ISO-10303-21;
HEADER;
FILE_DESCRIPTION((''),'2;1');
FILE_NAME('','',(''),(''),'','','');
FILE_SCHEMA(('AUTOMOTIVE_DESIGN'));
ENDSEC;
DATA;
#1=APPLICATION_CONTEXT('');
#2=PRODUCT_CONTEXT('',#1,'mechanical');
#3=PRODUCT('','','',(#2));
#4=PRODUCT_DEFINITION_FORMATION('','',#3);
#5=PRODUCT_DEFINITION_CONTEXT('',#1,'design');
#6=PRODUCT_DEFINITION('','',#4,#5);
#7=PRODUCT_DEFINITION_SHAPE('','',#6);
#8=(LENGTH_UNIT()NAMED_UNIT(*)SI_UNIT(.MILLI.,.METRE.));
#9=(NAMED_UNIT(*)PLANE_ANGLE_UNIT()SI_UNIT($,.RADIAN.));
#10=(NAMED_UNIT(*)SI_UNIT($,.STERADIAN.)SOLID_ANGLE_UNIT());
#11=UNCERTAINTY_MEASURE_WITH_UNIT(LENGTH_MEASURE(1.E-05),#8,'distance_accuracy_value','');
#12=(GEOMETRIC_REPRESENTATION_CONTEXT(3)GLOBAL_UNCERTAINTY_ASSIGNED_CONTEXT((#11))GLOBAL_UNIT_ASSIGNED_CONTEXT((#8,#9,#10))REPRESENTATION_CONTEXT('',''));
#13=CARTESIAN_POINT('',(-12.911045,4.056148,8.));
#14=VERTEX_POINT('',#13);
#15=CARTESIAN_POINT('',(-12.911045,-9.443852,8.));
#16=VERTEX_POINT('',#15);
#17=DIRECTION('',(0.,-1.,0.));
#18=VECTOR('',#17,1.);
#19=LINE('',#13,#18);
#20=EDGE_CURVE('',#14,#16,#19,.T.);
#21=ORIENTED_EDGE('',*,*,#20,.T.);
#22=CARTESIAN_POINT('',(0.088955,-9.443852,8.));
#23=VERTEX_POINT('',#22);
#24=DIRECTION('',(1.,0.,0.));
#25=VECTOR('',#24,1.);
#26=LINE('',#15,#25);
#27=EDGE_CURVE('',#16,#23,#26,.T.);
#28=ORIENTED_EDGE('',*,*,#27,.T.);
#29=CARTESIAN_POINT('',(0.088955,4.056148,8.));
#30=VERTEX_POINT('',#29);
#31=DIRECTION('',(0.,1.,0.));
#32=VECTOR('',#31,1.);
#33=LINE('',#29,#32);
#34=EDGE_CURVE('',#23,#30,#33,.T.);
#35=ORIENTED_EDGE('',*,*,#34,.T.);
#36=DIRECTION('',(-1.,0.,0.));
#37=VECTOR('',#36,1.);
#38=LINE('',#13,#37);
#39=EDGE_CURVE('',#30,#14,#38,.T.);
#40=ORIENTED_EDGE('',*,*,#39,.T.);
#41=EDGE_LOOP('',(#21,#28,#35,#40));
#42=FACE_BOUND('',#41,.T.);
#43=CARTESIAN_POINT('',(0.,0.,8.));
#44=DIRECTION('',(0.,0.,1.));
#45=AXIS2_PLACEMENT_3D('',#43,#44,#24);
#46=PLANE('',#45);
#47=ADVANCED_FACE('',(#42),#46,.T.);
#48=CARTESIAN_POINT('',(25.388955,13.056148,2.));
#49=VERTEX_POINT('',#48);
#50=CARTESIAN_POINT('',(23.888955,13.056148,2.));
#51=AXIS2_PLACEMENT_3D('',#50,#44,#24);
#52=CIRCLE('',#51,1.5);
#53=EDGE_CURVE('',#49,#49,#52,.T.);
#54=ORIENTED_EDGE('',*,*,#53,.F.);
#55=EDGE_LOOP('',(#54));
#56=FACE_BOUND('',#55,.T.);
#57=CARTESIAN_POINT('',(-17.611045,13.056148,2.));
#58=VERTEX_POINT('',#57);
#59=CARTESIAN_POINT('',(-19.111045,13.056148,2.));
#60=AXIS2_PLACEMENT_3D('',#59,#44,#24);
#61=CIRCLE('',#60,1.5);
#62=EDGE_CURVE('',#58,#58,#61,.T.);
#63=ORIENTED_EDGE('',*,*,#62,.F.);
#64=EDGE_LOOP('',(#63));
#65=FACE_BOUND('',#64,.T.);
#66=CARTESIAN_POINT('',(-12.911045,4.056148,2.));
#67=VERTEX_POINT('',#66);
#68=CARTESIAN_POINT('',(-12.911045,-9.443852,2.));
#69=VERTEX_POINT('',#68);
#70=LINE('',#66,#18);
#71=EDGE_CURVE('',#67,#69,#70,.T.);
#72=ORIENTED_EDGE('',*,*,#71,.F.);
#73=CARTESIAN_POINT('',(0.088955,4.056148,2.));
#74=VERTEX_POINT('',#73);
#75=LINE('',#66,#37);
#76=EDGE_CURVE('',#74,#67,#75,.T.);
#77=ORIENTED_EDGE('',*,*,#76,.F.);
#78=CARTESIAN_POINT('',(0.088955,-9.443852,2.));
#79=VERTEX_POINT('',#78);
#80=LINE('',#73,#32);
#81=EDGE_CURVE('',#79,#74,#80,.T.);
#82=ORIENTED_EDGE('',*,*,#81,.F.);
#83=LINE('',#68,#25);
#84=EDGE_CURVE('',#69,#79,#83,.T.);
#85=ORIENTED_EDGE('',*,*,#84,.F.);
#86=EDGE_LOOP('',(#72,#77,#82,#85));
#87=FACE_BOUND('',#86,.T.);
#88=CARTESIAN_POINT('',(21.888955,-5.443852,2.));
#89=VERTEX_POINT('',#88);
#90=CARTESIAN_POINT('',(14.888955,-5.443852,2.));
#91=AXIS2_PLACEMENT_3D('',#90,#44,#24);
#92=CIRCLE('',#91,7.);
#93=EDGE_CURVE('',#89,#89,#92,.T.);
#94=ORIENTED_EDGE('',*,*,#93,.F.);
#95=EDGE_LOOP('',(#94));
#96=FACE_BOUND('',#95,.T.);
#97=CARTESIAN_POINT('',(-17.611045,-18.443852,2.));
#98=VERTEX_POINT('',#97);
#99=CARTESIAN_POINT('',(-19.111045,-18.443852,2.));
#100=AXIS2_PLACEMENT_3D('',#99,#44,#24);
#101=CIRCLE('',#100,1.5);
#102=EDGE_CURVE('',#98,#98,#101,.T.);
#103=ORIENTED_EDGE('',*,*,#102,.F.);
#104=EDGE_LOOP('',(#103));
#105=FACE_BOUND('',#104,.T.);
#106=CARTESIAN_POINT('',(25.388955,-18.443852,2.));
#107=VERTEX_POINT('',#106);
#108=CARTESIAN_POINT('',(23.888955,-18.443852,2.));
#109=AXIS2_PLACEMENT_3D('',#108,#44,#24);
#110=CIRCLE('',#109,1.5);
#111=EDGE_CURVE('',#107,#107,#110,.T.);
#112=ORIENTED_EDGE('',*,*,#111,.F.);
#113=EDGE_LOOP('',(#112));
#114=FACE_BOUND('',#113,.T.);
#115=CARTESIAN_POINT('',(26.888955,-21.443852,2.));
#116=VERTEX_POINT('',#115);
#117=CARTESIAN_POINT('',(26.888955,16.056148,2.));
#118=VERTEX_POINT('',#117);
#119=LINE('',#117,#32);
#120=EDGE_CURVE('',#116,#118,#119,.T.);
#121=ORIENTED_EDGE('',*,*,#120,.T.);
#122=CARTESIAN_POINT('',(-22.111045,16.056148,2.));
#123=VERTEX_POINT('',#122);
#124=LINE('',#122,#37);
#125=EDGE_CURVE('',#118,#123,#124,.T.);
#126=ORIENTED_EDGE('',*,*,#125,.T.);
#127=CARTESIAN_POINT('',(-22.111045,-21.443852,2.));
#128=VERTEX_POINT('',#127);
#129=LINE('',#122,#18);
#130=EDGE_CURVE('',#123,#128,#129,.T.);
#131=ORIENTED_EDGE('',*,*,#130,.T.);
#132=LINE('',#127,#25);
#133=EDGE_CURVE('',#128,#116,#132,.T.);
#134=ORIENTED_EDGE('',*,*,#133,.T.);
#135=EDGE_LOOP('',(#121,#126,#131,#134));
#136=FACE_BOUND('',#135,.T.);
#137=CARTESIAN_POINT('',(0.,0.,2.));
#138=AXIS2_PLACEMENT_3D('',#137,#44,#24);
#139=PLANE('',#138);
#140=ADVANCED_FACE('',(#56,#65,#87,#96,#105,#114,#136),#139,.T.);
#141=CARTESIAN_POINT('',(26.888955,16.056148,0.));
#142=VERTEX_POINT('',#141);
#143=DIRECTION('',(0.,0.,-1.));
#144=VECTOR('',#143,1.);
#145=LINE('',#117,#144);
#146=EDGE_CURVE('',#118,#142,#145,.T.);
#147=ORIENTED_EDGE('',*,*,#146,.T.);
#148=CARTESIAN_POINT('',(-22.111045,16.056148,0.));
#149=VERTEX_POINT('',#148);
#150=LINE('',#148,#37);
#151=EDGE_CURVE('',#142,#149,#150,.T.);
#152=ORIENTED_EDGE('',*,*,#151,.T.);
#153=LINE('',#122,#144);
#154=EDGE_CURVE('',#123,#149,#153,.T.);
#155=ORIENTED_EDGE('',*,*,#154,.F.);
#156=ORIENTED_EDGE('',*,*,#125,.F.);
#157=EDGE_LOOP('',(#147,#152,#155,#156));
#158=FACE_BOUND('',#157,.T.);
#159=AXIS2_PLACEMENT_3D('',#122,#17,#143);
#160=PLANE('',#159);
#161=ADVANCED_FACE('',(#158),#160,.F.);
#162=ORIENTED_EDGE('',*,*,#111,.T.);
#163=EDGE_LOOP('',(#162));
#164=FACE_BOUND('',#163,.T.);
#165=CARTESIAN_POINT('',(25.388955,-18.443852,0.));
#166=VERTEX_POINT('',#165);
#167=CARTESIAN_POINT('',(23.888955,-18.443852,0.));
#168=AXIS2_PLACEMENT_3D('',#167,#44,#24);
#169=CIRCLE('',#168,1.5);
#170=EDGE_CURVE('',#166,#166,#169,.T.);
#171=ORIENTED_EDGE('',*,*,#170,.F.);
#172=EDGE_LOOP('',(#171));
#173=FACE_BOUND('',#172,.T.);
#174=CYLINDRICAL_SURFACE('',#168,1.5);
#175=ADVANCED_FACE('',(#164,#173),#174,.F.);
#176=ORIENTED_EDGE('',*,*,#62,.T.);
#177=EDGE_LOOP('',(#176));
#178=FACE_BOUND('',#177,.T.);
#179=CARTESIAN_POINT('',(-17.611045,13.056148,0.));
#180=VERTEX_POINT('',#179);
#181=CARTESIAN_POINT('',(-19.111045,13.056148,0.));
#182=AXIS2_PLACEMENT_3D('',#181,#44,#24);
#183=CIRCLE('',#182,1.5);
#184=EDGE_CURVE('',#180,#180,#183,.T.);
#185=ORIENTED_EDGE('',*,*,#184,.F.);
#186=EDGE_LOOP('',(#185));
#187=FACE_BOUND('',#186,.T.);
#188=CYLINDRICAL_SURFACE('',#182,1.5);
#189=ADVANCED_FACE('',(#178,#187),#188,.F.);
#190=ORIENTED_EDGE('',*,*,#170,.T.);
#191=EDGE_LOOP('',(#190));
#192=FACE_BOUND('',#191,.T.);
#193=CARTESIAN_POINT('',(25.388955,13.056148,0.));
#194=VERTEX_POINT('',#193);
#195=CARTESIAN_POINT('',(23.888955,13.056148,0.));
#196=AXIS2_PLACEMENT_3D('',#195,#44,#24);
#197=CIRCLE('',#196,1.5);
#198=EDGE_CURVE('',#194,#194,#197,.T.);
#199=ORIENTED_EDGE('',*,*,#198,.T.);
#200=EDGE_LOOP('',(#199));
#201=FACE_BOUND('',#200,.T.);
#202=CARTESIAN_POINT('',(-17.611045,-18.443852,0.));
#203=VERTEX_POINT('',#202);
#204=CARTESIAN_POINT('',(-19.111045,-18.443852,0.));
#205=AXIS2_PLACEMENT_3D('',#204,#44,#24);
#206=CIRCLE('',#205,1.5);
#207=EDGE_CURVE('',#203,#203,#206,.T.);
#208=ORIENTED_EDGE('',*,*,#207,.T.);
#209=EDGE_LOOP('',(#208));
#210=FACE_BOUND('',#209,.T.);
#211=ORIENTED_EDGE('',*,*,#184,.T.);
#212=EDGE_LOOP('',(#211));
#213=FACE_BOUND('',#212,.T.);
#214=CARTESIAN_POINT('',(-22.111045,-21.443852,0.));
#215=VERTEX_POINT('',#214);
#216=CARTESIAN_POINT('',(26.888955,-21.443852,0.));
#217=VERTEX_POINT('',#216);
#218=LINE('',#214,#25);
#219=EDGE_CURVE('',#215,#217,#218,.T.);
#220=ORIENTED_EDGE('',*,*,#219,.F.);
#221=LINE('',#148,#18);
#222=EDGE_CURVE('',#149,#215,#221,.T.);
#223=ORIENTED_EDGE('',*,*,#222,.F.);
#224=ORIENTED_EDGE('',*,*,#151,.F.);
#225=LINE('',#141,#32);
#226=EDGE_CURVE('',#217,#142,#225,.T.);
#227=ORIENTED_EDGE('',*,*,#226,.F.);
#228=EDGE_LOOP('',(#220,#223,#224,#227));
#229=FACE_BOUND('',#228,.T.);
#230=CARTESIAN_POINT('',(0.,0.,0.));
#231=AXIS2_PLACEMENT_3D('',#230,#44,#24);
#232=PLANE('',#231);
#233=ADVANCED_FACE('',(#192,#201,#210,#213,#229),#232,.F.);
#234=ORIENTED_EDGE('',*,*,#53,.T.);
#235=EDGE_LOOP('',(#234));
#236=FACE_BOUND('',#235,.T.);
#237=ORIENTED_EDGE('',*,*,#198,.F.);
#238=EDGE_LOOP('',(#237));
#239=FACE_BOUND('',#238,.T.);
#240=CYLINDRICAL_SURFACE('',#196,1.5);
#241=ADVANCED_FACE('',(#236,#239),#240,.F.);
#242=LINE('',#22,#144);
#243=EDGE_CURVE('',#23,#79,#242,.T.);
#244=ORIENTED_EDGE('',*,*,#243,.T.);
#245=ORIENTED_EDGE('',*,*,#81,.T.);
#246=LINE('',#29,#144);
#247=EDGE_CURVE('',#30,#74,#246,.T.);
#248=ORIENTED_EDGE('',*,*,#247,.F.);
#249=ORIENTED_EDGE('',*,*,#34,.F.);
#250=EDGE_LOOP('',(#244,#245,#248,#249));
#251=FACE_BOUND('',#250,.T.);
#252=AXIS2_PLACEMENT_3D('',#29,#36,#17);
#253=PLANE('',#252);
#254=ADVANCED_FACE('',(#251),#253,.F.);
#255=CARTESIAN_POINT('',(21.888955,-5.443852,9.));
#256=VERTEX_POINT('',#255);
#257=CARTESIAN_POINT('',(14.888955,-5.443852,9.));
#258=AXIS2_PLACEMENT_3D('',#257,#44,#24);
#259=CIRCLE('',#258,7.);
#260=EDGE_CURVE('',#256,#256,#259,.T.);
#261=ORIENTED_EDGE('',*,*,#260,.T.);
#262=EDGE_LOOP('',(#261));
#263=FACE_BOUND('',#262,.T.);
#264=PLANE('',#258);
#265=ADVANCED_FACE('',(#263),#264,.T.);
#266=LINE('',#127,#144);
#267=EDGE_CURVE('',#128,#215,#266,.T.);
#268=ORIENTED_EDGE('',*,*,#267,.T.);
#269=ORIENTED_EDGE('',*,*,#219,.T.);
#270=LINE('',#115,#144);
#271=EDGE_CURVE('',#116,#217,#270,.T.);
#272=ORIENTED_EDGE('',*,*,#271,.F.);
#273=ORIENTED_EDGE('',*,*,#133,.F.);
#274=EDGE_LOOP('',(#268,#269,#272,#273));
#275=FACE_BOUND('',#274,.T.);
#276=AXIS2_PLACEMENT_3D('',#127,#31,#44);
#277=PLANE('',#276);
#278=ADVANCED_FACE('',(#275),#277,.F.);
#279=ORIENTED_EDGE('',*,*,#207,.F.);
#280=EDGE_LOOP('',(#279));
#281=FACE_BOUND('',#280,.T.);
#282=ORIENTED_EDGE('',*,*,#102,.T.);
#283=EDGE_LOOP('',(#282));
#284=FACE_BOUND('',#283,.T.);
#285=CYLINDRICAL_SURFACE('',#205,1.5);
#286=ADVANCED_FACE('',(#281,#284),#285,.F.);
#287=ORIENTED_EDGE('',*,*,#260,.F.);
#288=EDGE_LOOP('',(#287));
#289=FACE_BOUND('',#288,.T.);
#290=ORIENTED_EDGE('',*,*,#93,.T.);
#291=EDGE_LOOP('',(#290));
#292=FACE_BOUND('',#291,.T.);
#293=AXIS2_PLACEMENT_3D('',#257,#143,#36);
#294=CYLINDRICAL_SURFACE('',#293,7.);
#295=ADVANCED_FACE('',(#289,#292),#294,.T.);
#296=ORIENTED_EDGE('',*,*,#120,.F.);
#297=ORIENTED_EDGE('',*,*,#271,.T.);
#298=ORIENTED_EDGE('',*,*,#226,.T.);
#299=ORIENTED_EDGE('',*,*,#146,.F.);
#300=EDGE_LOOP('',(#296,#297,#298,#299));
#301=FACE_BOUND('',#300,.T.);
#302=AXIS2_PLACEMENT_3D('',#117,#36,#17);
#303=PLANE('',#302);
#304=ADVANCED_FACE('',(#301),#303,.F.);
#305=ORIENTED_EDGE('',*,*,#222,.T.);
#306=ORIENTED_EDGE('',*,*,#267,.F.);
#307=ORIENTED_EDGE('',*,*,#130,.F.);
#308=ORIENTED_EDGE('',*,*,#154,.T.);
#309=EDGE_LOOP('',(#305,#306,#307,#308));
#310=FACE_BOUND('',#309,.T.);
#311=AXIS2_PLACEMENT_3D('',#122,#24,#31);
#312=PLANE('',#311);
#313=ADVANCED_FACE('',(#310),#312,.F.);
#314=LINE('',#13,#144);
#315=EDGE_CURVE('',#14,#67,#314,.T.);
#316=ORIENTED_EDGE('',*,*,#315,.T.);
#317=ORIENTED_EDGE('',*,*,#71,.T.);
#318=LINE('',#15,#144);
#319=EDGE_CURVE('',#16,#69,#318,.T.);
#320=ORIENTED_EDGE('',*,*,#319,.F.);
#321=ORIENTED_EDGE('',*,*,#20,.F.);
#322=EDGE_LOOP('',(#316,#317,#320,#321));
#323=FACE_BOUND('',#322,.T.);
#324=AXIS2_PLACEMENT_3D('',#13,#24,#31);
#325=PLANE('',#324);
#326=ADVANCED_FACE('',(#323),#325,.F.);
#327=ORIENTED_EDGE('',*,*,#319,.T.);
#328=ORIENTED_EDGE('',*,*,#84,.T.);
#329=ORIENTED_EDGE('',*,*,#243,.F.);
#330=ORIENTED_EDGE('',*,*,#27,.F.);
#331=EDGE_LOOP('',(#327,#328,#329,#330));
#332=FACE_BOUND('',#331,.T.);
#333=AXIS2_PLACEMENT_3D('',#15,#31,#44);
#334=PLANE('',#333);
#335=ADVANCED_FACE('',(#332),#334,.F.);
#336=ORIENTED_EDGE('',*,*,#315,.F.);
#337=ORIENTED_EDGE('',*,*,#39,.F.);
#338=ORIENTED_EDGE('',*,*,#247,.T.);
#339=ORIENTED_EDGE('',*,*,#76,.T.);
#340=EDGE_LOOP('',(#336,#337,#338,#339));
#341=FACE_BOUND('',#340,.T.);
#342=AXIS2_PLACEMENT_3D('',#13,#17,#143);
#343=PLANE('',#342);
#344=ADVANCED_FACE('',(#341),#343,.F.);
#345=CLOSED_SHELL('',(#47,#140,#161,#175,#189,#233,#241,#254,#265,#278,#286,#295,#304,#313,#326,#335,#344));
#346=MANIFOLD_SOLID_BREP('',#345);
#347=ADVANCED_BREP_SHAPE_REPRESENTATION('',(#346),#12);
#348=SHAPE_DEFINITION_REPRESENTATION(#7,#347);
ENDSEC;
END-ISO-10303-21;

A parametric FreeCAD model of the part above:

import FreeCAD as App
import Part
import Sketcher
from FreeCAD import Vector
Q = App.Units.Quantity


def add_polygon(sketch, points):
    """Adds a closed chain of lines whose ends are joined by coincident constraints."""
    first, n = sketch.GeometryCount, len(points)
    for a, b in zip(points, points[1:] + points[:1]):
        sketch.addGeometry(Part.LineSegment(App.Vector(*a, 0), App.Vector(*b, 0)), False)
    for i in range(n):
        sketch.addConstraint(Sketcher.Constraint("Coincident", first + i, 2, first + (i + 1) % n, 1))

doc = App.newDocument("Part")
body = doc.addObject("PartDesign::Body", "Body")

sketch1 = body.newObject("Sketcher::SketchObject", "Sketch")
sketch1.AttachmentSupport = (doc.getObject("XY_Plane"), [""])
sketch1.MapMode = "FlatFace"
add_polygon(sketch1, [(-22.111045, 16.056148), (-22.111045, -21.443852), (26.888955, -21.443852), (26.888955, 16.056148)])
sketch1.addConstraint([
    Sketcher.Constraint("Vertical", 0),
    Sketcher.Constraint("Horizontal", 1),
    Sketcher.Constraint("Vertical", 2),
    Sketcher.Constraint("Horizontal", 3),
    Sketcher.Constraint("DistanceX", 1, 1, 1, 2, Q("49 mm")),
    Sketcher.Constraint("DistanceY", 0, 2, 0, 1, Q("37.5 mm")),
    Sketcher.Constraint("DistanceY", 0, 2, -1, 1, Q("21.443852 mm")),
    Sketcher.Constraint("DistanceX", 0, 2, -1, 1, Q("22.111045 mm")),
])
pad1 = body.newObject("PartDesign::Pad", "Pad")
pad1.Profile = sketch1
pad1.Length = 2

sketch2 = body.newObject("Sketcher::SketchObject", "Sketch001")
sketch2.AttachmentSupport = (doc.getObject("XY_Plane"), [""])
sketch2.MapMode = "FlatFace"
sketch2.AttachmentOffset = App.Placement(Vector(0, 0, 2), App.Rotation())
sketch2.addGeometry([
    Part.Circle(Vector(-19.111045, 13.056148, 0), Vector(0, 0, 1), 1.5),
    Part.Circle(Vector(23.888955, 13.056148, 0), Vector(0, 0, 1), 1.5),
    Part.Circle(Vector(23.888955, -18.443852, 0), Vector(0, 0, 1), 1.5),
    Part.Circle(Vector(-19.111045, -18.443852, 0), Vector(0, 0, 1), 1.5),
], False)
sketch2.addConstraint([
    Sketcher.Constraint("Equal", 0, 1),
    Sketcher.Constraint("Equal", 1, 2),
    Sketcher.Constraint("Equal", 2, 3),
    Sketcher.Constraint("Horizontal", 0, 3, 1, 3),
    Sketcher.Constraint("Horizontal", 2, 3, 3, 3),
    Sketcher.Constraint("Vertical", 1, 3, 2, 3),
    Sketcher.Constraint("Vertical", 0, 3, 3, 3),
    Sketcher.Constraint("Diameter", 0, Q("3 mm")),
    Sketcher.Constraint("DistanceX", 0, 3, 1, 3, Q("43 mm")),
    Sketcher.Constraint("DistanceY", 2, 3, 1, 3, Q("31.5 mm")),
    Sketcher.Constraint("DistanceY", -1, 1, 0, 3, Q("13.056148 mm")),
    Sketcher.Constraint("DistanceX", 0, 3, -1, 1, Q("19.111045 mm")),
])
pocket1 = body.newObject("PartDesign::Pocket", "Pocket")
pocket1.Profile = sketch2
pocket1.Type = "ThroughAll"

sketch3 = body.newObject("Sketcher::SketchObject", "Sketch002")
sketch3.AttachmentSupport = (doc.getObject("XY_Plane"), [""])
sketch3.MapMode = "FlatFace"
sketch3.AttachmentOffset = App.Placement(Vector(0, 0, 2), App.Rotation())
sketch3.addGeometry(Part.Circle(Vector(14.888955, -5.443852, 0), Vector(0, 0, 1), 7), False)
sketch3.addConstraint([
    Sketcher.Constraint("Diameter", 0, Q("14 mm")),
    Sketcher.Constraint("DistanceY", 0, 3, -1, 1, Q("5.443852 mm")),
    Sketcher.Constraint("DistanceX", -1, 1, 0, 3, Q("14.888955 mm")),
])
pad2 = body.newObject("PartDesign::Pad", "Pad001")
pad2.Profile = sketch3
pad2.Length = 7

sketch4 = body.newObject("Sketcher::SketchObject", "Sketch003")
sketch4.AttachmentSupport = (doc.getObject("XY_Plane"), [""])
sketch4.MapMode = "FlatFace"
sketch4.AttachmentOffset = App.Placement(Vector(0, 0, 2), App.Rotation())
add_polygon(sketch4, [(-12.911045, 4.056148), (-12.911045, -9.443852), (0.088955, -9.443852), (0.088955, 4.056148)])
sketch4.addConstraint([
    Sketcher.Constraint("Vertical", 0),
    Sketcher.Constraint("Horizontal", 1),
    Sketcher.Constraint("Vertical", 2),
    Sketcher.Constraint("Horizontal", 3),
    Sketcher.Constraint("DistanceX", 1, 1, 1, 2, Q("13 mm")),
    Sketcher.Constraint("DistanceY", 0, 2, 0, 1, Q("13.5 mm")),
    Sketcher.Constraint("DistanceY", 0, 2, -1, 1, Q("9.443852 mm")),
    Sketcher.Constraint("DistanceX", 0, 2, -1, 1, Q("12.911045 mm")),
])
pad3 = body.newObject("PartDesign::Pad", "Pad002")
pad3.Profile = sketch4
pad3.Length = 6

doc.recompute()
